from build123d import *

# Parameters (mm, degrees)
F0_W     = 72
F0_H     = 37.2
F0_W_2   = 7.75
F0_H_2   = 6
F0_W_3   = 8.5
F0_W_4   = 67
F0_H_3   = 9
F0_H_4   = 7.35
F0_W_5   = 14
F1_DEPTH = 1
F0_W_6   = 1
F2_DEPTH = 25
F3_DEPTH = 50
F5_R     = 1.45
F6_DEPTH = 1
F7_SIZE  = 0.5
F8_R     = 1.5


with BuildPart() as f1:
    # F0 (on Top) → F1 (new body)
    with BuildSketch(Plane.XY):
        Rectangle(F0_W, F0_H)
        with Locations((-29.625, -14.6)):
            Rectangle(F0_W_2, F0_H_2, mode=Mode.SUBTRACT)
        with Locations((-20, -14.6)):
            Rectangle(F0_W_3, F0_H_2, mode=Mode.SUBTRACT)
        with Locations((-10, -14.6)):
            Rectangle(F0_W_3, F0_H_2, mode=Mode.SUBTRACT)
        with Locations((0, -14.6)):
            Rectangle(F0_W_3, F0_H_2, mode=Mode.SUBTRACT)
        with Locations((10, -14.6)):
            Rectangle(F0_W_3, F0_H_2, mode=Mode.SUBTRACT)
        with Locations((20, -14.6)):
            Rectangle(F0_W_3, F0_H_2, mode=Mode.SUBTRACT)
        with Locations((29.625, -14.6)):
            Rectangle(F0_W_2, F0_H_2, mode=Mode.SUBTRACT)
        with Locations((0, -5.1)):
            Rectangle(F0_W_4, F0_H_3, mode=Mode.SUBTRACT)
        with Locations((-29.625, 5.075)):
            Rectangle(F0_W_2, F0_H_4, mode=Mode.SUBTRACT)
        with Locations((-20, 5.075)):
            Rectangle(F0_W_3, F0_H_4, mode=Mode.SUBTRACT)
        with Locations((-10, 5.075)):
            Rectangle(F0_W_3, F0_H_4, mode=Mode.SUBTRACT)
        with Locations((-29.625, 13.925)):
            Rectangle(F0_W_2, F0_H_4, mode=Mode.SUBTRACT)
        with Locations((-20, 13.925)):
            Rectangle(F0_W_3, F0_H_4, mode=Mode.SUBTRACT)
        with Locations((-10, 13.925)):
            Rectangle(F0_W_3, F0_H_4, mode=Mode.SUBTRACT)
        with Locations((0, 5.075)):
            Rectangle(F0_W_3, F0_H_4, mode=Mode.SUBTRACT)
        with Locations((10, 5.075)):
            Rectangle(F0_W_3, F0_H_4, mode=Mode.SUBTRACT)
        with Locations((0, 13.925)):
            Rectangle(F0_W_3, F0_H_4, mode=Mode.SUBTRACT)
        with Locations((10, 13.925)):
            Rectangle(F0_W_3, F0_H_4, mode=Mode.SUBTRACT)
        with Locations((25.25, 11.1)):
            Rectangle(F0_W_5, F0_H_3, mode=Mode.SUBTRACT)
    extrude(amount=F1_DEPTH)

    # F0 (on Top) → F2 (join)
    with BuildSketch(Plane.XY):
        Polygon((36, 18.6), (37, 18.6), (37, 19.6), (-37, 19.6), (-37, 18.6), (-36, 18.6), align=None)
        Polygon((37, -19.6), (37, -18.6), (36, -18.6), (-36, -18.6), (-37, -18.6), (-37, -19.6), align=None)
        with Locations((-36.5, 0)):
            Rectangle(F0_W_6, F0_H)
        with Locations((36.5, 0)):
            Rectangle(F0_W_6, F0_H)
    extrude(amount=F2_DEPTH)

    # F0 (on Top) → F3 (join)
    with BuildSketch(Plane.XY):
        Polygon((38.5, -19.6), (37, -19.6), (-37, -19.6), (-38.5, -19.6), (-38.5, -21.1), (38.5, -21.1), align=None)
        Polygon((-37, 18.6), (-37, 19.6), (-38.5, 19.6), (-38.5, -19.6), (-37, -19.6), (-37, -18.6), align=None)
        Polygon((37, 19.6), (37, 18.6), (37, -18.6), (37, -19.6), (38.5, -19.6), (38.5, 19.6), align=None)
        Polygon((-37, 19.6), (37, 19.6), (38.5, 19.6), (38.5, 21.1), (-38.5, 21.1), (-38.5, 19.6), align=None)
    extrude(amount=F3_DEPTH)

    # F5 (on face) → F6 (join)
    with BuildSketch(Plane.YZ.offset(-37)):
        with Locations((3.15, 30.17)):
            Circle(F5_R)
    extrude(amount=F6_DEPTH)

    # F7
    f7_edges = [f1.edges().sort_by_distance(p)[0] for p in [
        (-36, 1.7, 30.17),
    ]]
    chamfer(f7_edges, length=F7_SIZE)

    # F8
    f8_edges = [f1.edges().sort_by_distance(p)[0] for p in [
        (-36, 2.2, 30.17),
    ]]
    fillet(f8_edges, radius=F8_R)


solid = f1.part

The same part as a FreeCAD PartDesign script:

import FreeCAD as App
import Part
import Sketcher


def edges_at(feature, points):
    """Names of the edges that pass closest to the given points."""
    edges = feature.Shape.Edges
    near = lambda p: min(range(len(edges)), key=lambda i: edges[i].distToShape(Part.Vertex(*p))[0])
    return sorted({f"Edge{near(p) + 1}" for p in points})

doc = App.newDocument("Part")
body = doc.addObject("PartDesign::Body", "Body")

sketch1 = body.newObject("Sketcher::SketchObject", "Sketch")
sketch1.AttachmentSupport = (doc.getObject("XY_Plane"), [""])
sketch1.MapMode = "FlatFace"
sketch1.addGeometry(Part.LineSegment(App.Vector(-36, 18.6, 0), App.Vector(-36, -18.6, 0)), False)
sketch1.addGeometry(Part.LineSegment(App.Vector(-36, -18.6, 0), App.Vector(36, -18.6, 0)), False)
sketch1.addGeometry(Part.LineSegment(App.Vector(36, -18.6, 0), App.Vector(36, 18.6, 0)), False)
sketch1.addGeometry(Part.LineSegment(App.Vector(36, 18.6, 0), App.Vector(-36, 18.6, 0)), False)
sketch1.addGeometry(Part.LineSegment(App.Vector(-25.75, -17.6, 0), App.Vector(-33.5, -17.6, 0)), False)
sketch1.addGeometry(Part.LineSegment(App.Vector(-33.5, -17.6, 0), App.Vector(-33.5, -11.6, 0)), False)
sketch1.addGeometry(Part.LineSegment(App.Vector(-33.5, -11.6, 0), App.Vector(-25.75, -11.6, 0)), False)
sketch1.addGeometry(Part.LineSegment(App.Vector(-25.75, -11.6, 0), App.Vector(-25.75, -17.6, 0)), False)
sketch1.addGeometry(Part.LineSegment(App.Vector(-15.75, -17.6, 0), App.Vector(-24.25, -17.6, 0)), False)
sketch1.addGeometry(Part.LineSegment(App.Vector(-24.25, -17.6, 0), App.Vector(-24.25, -11.6, 0)), False)
sketch1.addGeometry(Part.LineSegment(App.Vector(-24.25, -11.6, 0), App.Vector(-15.75, -11.6, 0)), False)
sketch1.addGeometry(Part.LineSegment(App.Vector(-15.75, -11.6, 0), App.Vector(-15.75, -17.6, 0)), False)
sketch1.addGeometry(Part.LineSegment(App.Vector(-5.75, -17.6, 0), App.Vector(-14.25, -17.6, 0)), False)
sketch1.addGeometry(Part.LineSegment(App.Vector(-14.25, -17.6, 0), App.Vector(-14.25, -11.6, 0)), False)
sketch1.addGeometry(Part.LineSegment(App.Vector(-14.25, -11.6, 0), App.Vector(-5.75, -11.6, 0)), False)
sketch1.addGeometry(Part.LineSegment(App.Vector(-5.75, -11.6, 0), App.Vector(-5.75, -17.6, 0)), False)
sketch1.addGeometry(Part.LineSegment(App.Vector(4.25, -17.6, 0), App.Vector(-4.25, -17.6, 0)), False)
sketch1.addGeometry(Part.LineSegment(App.Vector(-4.25, -17.6, 0), App.Vector(-4.25, -11.6, 0)), False)
sketch1.addGeometry(Part.LineSegment(App.Vector(-4.25, -11.6, 0), App.Vector(4.25, -11.6, 0)), False)
sketch1.addGeometry(Part.LineSegment(App.Vector(4.25, -11.6, 0), App.Vector(4.25, -17.6, 0)), False)
sketch1.addGeometry(Part.LineSegment(App.Vector(14.25, -17.6, 0), App.Vector(5.75, -17.6, 0)), False)
sketch1.addGeometry(Part.LineSegment(App.Vector(5.75, -17.6, 0), App.Vector(5.75, -11.6, 0)), False)
sketch1.addGeometry(Part.LineSegment(App.Vector(5.75, -11.6, 0), App.Vector(14.25, -11.6, 0)), False)
sketch1.addGeometry(Part.LineSegment(App.Vector(14.25, -11.6, 0), App.Vector(14.25, -17.6, 0)), False)
sketch1.addGeometry(Part.LineSegment(App.Vector(24.25, -17.6, 0), App.Vector(15.75, -17.6, 0)), False)
sketch1.addGeometry(Part.LineSegment(App.Vector(15.75, -17.6, 0), App.Vector(15.75, -11.6, 0)), False)
sketch1.addGeometry(Part.LineSegment(App.Vector(15.75, -11.6, 0), App.Vector(24.25, -11.6, 0)), False)
sketch1.addGeometry(Part.LineSegment(App.Vector(24.25, -11.6, 0), App.Vector(24.25, -17.6, 0)), False)
sketch1.addGeometry(Part.LineSegment(App.Vector(33.5, -17.6, 0), App.Vector(25.75, -17.6, 0)), False)
sketch1.addGeometry(Part.LineSegment(App.Vector(25.75, -17.6, 0), App.Vector(25.75, -11.6, 0)), False)
sketch1.addGeometry(Part.LineSegment(App.Vector(25.75, -11.6, 0), App.Vector(33.5, -11.6, 0)), False)
sketch1.addGeometry(Part.LineSegment(App.Vector(33.5, -11.6, 0), App.Vector(33.5, -17.6, 0)), False)
sketch1.addGeometry(Part.LineSegment(App.Vector(33.5, -9.6, 0), App.Vector(-33.5, -9.6, 0)), False)
sketch1.addGeometry(Part.LineSegment(App.Vector(-33.5, -9.6, 0), App.Vector(-33.5, -0.6, 0)), False)
sketch1.addGeometry(Part.LineSegment(App.Vector(-33.5, -0.6, 0), App.Vector(33.5, -0.6, 0)), False)
sketch1.addGeometry(Part.LineSegment(App.Vector(33.5, -0.6, 0), App.Vector(33.5, -9.6, 0)), False)
sketch1.addGeometry(Part.LineSegment(App.Vector(-25.75, 1.4, 0), App.Vector(-33.5, 1.4, 0)), False)
sketch1.addGeometry(Part.LineSegment(App.Vector(-33.5, 1.4, 0), App.Vector(-33.5, 8.75, 0)), False)
sketch1.addGeometry(Part.LineSegment(App.Vector(-33.5, 8.75, 0), App.Vector(-25.75, 8.75, 0)), False)
sketch1.addGeometry(Part.LineSegment(App.Vector(-25.75, 8.75, 0), App.Vector(-25.75, 1.4, 0)), False)
sketch1.addGeometry(Part.LineSegment(App.Vector(-15.75, 1.4, 0), App.Vector(-24.25, 1.4, 0)), False)
sketch1.addGeometry(Part.LineSegment(App.Vector(-24.25, 1.4, 0), App.Vector(-24.25, 8.75, 0)), False)
sketch1.addGeometry(Part.LineSegment(App.Vector(-24.25, 8.75, 0), App.Vector(-15.75, 8.75, 0)), False)
sketch1.addGeometry(Part.LineSegment(App.Vector(-15.75, 8.75, 0), App.Vector(-15.75, 1.4, 0)), False)
sketch1.addGeometry(Part.LineSegment(App.Vector(-5.75, 1.4, 0), App.Vector(-14.25, 1.4, 0)), False)
sketch1.addGeometry(Part.LineSegment(App.Vector(-14.25, 1.4, 0), App.Vector(-14.25, 8.75, 0)), False)
sketch1.addGeometry(Part.LineSegment(App.Vector(-14.25, 8.75, 0), App.Vector(-5.75, 8.75, 0)), False)
sketch1.addGeometry(Part.LineSegment(App.Vector(-5.75, 8.75, 0), App.Vector(-5.75, 1.4, 0)), False)
sketch1.addGeometry(Part.LineSegment(App.Vector(-25.75, 10.25, 0), App.Vector(-33.5, 10.25, 0)), False)
sketch1.addGeometry(Part.LineSegment(App.Vector(-33.5, 10.25, 0), App.Vector(-33.5, 17.6, 0)), False)
sketch1.addGeometry(Part.LineSegment(App.Vector(-33.5, 17.6, 0), App.Vector(-25.75, 17.6, 0)), False)
sketch1.addGeometry(Part.LineSegment(App.Vector(-25.75, 17.6, 0), App.Vector(-25.75, 10.25, 0)), False)
sketch1.addGeometry(Part.LineSegment(App.Vector(-15.75, 10.25, 0), App.Vector(-24.25, 10.25, 0)), False)
sketch1.addGeometry(Part.LineSegment(App.Vector(-24.25, 10.25, 0), App.Vector(-24.25, 17.6, 0)), False)
sketch1.addGeometry(Part.LineSegment(App.Vector(-24.25, 17.6, 0), App.Vector(-15.75, 17.6, 0)), False)
sketch1.addGeometry(Part.LineSegment(App.Vector(-15.75, 17.6, 0), App.Vector(-15.75, 10.25, 0)), False)
sketch1.addGeometry(Part.LineSegment(App.Vector(-5.75, 10.25, 0), App.Vector(-14.25, 10.25, 0)), False)
sketch1.addGeometry(Part.LineSegment(App.Vector(-14.25, 10.25, 0), App.Vector(-14.25, 17.6, 0)), False)
sketch1.addGeometry(Part.LineSegment(App.Vector(-14.25, 17.6, 0), App.Vector(-5.75, 17.6, 0)), False)
sketch1.addGeometry(Part.LineSegment(App.Vector(-5.75, 17.6, 0), App.Vector(-5.75, 10.25, 0)), False)
sketch1.addGeometry(Part.LineSegment(App.Vector(4.25, 1.4, 0), App.Vector(-4.25, 1.4, 0)), False)
sketch1.addGeometry(Part.LineSegment(App.Vector(-4.25, 1.4, 0), App.Vector(-4.25, 8.75, 0)), False)
sketch1.addGeometry(Part.LineSegment(App.Vector(-4.25, 8.75, 0), App.Vector(4.25, 8.75, 0)), False)
sketch1.addGeometry(Part.LineSegment(App.Vector(4.25, 8.75, 0), App.Vector(4.25, 1.4, 0)), False)
sketch1.addGeometry(Part.LineSegment(App.Vector(14.25, 1.4, 0), App.Vector(5.75, 1.4, 0)), False)
sketch1.addGeometry(Part.LineSegment(App.Vector(5.75, 1.4, 0), App.Vector(5.75, 8.75, 0)), False)
sketch1.addGeometry(Part.LineSegment(App.Vector(5.75, 8.75, 0), App.Vector(14.25, 8.75, 0)), False)
sketch1.addGeometry(Part.LineSegment(App.Vector(14.25, 8.75, 0), App.Vector(14.25, 1.4, 0)), False)
sketch1.addGeometry(Part.LineSegment(App.Vector(4.25, 10.25, 0), App.Vector(-4.25, 10.25, 0)), False)
sketch1.addGeometry(Part.LineSegment(App.Vector(-4.25, 10.25, 0), App.Vector(-4.25, 17.6, 0)), False)
sketch1.addGeometry(Part.LineSegment(App.Vector(-4.25, 17.6, 0), App.Vector(4.25, 17.6, 0)), False)
sketch1.addGeometry(Part.LineSegment(App.Vector(4.25, 17.6, 0), App.Vector(4.25, 10.25, 0)), False)
sketch1.addGeometry(Part.LineSegment(App.Vector(14.25, 10.25, 0), App.Vector(5.75, 10.25, 0)), False)
sketch1.addGeometry(Part.LineSegment(App.Vector(5.75, 10.25, 0), App.Vector(5.75, 17.6, 0)), False)
sketch1.addGeometry(Part.LineSegment(App.Vector(5.75, 17.6, 0), App.Vector(14.25, 17.6, 0)), False)
sketch1.addGeometry(Part.LineSegment(App.Vector(14.25, 17.6, 0), App.Vector(14.25, 10.25, 0)), False)
sketch1.addGeometry(Part.LineSegment(App.Vector(32.25, 6.6, 0), App.Vector(18.25, 6.6, 0)), False)
sketch1.addGeometry(Part.LineSegment(App.Vector(18.25, 6.6, 0), App.Vector(18.25, 15.6, 0)), False)
sketch1.addGeometry(Part.LineSegment(App.Vector(18.25, 15.6, 0), App.Vector(32.25, 15.6, 0)), False)
sketch1.addGeometry(Part.LineSegment(App.Vector(32.25, 15.6, 0), App.Vector(32.25, 6.6, 0)), False)
sketch1.addConstraint(Sketcher.Constraint("Coincident", 0, 2, 1, 1))
sketch1.addConstraint(Sketcher.Constraint("Coincident", 1, 2, 2, 1))
sketch1.addConstraint(Sketcher.Constraint("Coincident", 2, 2, 3, 1))
sketch1.addConstraint(Sketcher.Constraint("Coincident", 3, 2, 0, 1))
sketch1.addConstraint(Sketcher.Constraint("Coincident", 4, 2, 5, 1))
sketch1.addConstraint(Sketcher.Constraint("Coincident", 5, 2, 6, 1))
sketch1.addConstraint(Sketcher.Constraint("Coincident", 6, 2, 7, 1))
sketch1.addConstraint(Sketcher.Constraint("Coincident", 7, 2, 4, 1))
sketch1.addConstraint(Sketcher.Constraint("Coincident", 8, 2, 9, 1))
sketch1.addConstraint(Sketcher.Constraint("Coincident", 9, 2, 10, 1))
sketch1.addConstraint(Sketcher.Constraint("Coincident", 10, 2, 11, 1))
sketch1.addConstraint(Sketcher.Constraint("Coincident", 11, 2, 8, 1))
sketch1.addConstraint(Sketcher.Constraint("Coincident", 12, 2, 13, 1))
sketch1.addConstraint(Sketcher.Constraint("Coincident", 13, 2, 14, 1))
sketch1.addConstraint(Sketcher.Constraint("Coincident", 14, 2, 15, 1))
sketch1.addConstraint(Sketcher.Constraint("Coincident", 15, 2, 12, 1))
sketch1.addConstraint(Sketcher.Constraint("Coincident", 16, 2, 17, 1))
sketch1.addConstraint(Sketcher.Constraint("Coincident", 17, 2, 18, 1))
sketch1.addConstraint(Sketcher.Constraint("Coincident", 18, 2, 19, 1))
sketch1.addConstraint(Sketcher.Constraint("Coincident", 19, 2, 16, 1))
sketch1.addConstraint(Sketcher.Constraint("Coincident", 20, 2, 21, 1))
sketch1.addConstraint(Sketcher.Constraint("Coincident", 21, 2, 22, 1))
sketch1.addConstraint(Sketcher.Constraint("Coincident", 22, 2, 23, 1))
sketch1.addConstraint(Sketcher.Constraint("Coincident", 23, 2, 20, 1))
sketch1.addConstraint(Sketcher.Constraint("Coincident", 24, 2, 25, 1))
sketch1.addConstraint(Sketcher.Constraint("Coincident", 25, 2, 26, 1))
sketch1.addConstraint(Sketcher.Constraint("Coincident", 26, 2, 27, 1))
sketch1.addConstraint(Sketcher.Constraint("Coincident", 27, 2, 24, 1))
sketch1.addConstraint(Sketcher.Constraint("Coincident", 28, 2, 29, 1))
sketch1.addConstraint(Sketcher.Constraint("Coincident", 29, 2, 30, 1))
sketch1.addConstraint(Sketcher.Constraint("Coincident", 30, 2, 31, 1))
sketch1.addConstraint(Sketcher.Constraint("Coincident", 31, 2, 28, 1))
sketch1.addConstraint(Sketcher.Constraint("Coincident", 32, 2, 33, 1))
sketch1.addConstraint(Sketcher.Constraint("Coincident", 33, 2, 34, 1))
sketch1.addConstraint(Sketcher.Constraint("Coincident", 34, 2, 35, 1))
sketch1.addConstraint(Sketcher.Constraint("Coincident", 35, 2, 32, 1))
sketch1.addConstraint(Sketcher.Constraint("Coincident", 36, 2, 37, 1))
sketch1.addConstraint(Sketcher.Constraint("Coincident", 37, 2, 38, 1))
sketch1.addConstraint(Sketcher.Constraint("Coincident", 38, 2, 39, 1))
sketch1.addConstraint(Sketcher.Constraint("Coincident", 39, 2, 36, 1))
sketch1.addConstraint(Sketcher.Constraint("Coincident", 40, 2, 41, 1))
sketch1.addConstraint(Sketcher.Constraint("Coincident", 41, 2, 42, 1))
sketch1.addConstraint(Sketcher.Constraint("Coincident", 42, 2, 43, 1))
sketch1.addConstraint(Sketcher.Constraint("Coincident", 43, 2, 40, 1))
sketch1.addConstraint(Sketcher.Constraint("Coincident", 44, 2, 45, 1))
sketch1.addConstraint(Sketcher.Constraint("Coincident", 45, 2, 46, 1))
sketch1.addConstraint(Sketcher.Constraint("Coincident", 46, 2, 47, 1))
sketch1.addConstraint(Sketcher.Constraint("Coincident", 47, 2, 44, 1))
sketch1.addConstraint(Sketcher.Constraint("Coincident", 48, 2, 49, 1))
sketch1.addConstraint(Sketcher.Constraint("Coincident", 49, 2, 50, 1))
sketch1.addConstraint(Sketcher.Constraint("Coincident", 50, 2, 51, 1))
sketch1.addConstraint(Sketcher.Constraint("Coincident", 51, 2, 48, 1))
sketch1.addConstraint(Sketcher.Constraint("Coincident", 52, 2, 53, 1))
sketch1.addConstraint(Sketcher.Constraint("Coincident", 53, 2, 54, 1))
sketch1.addConstraint(Sketcher.Constraint("Coincident", 54, 2, 55, 1))
sketch1.addConstraint(Sketcher.Constraint("Coincident", 55, 2, 52, 1))
sketch1.addConstraint(Sketcher.Constraint("Coincident", 56, 2, 57, 1))
sketch1.addConstraint(Sketcher.Constraint("Coincident", 57, 2, 58, 1))
sketch1.addConstraint(Sketcher.Constraint("Coincident", 58, 2, 59, 1))
sketch1.addConstraint(Sketcher.Constraint("Coincident", 59, 2, 56, 1))
sketch1.addConstraint(Sketcher.Constraint("Coincident", 60, 2, 61, 1))
sketch1.addConstraint(Sketcher.Constraint("Coincident", 61, 2, 62, 1))
sketch1.addConstraint(Sketcher.Constraint("Coincident", 62, 2, 63, 1))
sketch1.addConstraint(Sketcher.Constraint("Coincident", 63, 2, 60, 1))
sketch1.addConstraint(Sketcher.Constraint("Coincident", 64, 2, 65, 1))
sketch1.addConstraint(Sketcher.Constraint("Coincident", 65, 2, 66, 1))
sketch1.addConstraint(Sketcher.Constraint("Coincident", 66, 2, 67, 1))
sketch1.addConstraint(Sketcher.Constraint("Coincident", 67, 2, 64, 1))
sketch1.addConstraint(Sketcher.Constraint("Coincident", 68, 2, 69, 1))
sketch1.addConstraint(Sketcher.Constraint("Coincident", 69, 2, 70, 1))
sketch1.addConstraint(Sketcher.Constraint("Coincident", 70, 2, 71, 1))
sketch1.addConstraint(Sketcher.Constraint("Coincident", 71, 2, 68, 1))
sketch1.addConstraint(Sketcher.Constraint("Coincident", 72, 2, 73, 1))
sketch1.addConstraint(Sketcher.Constraint("Coincident", 73, 2, 74, 1))
sketch1.addConstraint(Sketcher.Constraint("Coincident", 74, 2, 75, 1))
sketch1.addConstraint(Sketcher.Constraint("Coincident", 75, 2, 72, 1))
sketch1.addConstraint(Sketcher.Constraint("Coincident", 76, 2, 77, 1))
sketch1.addConstraint(Sketcher.Constraint("Coincident", 77, 2, 78, 1))
sketch1.addConstraint(Sketcher.Constraint("Coincident", 78, 2, 79, 1))
sketch1.addConstraint(Sketcher.Constraint("Coincident", 79, 2, 76, 1))
sketch1.addConstraint(Sketcher.Constraint("Vertical", 0))
sketch1.addConstraint(Sketcher.Constraint("Horizontal", 1))
sketch1.addConstraint(Sketcher.Constraint("Vertical", 2))
sketch1.addConstraint(Sketcher.Constraint("Horizontal", 3))
sketch1.addConstraint(Sketcher.Constraint("Horizontal", 4))
sketch1.addConstraint(Sketcher.Constraint("Vertical", 5))
sketch1.addConstraint(Sketcher.Constraint("Horizontal", 6))
sketch1.addConstraint(Sketcher.Constraint("Vertical", 7))
sketch1.addConstraint(Sketcher.Constraint("Horizontal", 8))
sketch1.addConstraint(Sketcher.Constraint("Vertical", 9))
sketch1.addConstraint(Sketcher.Constraint("Horizontal", 10))
sketch1.addConstraint(Sketcher.Constraint("Vertical", 11))
sketch1.addConstraint(Sketcher.Constraint("Horizontal", 12))
sketch1.addConstraint(Sketcher.Constraint("Vertical", 13))
sketch1.addConstraint(Sketcher.Constraint("Horizontal", 14))
sketch1.addConstraint(Sketcher.Constraint("Vertical", 15))
sketch1.addConstraint(Sketcher.Constraint("Horizontal", 16))
sketch1.addConstraint(Sketcher.Constraint("Vertical", 17))
sketch1.addConstraint(Sketcher.Constraint("Horizontal", 18))
sketch1.addConstraint(Sketcher.Constraint("Vertical", 19))
sketch1.addConstraint(Sketcher.Constraint("Horizontal", 20))
sketch1.addConstraint(Sketcher.Constraint("Vertical", 21))
sketch1.addConstraint(Sketcher.Constraint("Horizontal", 22))
sketch1.addConstraint(Sketcher.Constraint("Vertical", 23))
sketch1.addConstraint(Sketcher.Constraint("Horizontal", 24))
sketch1.addConstraint(Sketcher.Constraint("Vertical", 25))
sketch1.addConstraint(Sketcher.Constraint("Horizontal", 26))
sketch1.addConstraint(Sketcher.Constraint("Vertical", 27))
sketch1.addConstraint(Sketcher.Constraint("Horizontal", 28))
sketch1.addConstraint(Sketcher.Constraint("Vertical", 29))
sketch1.addConstraint(Sketcher.Constraint("Horizontal", 30))
sketch1.addConstraint(Sketcher.Constraint("Vertical", 31))
sketch1.addConstraint(Sketcher.Constraint("Horizontal", 32))
sketch1.addConstraint(Sketcher.Constraint("Vertical", 33))
sketch1.addConstraint(Sketcher.Constraint("Horizontal", 34))
sketch1.addConstraint(Sketcher.Constraint("Vertical", 35))
sketch1.addConstraint(Sketcher.Constraint("Horizontal", 36))
sketch1.addConstraint(Sketcher.Constraint("Vertical", 37))
sketch1.addConstraint(Sketcher.Constraint("Horizontal", 38))
sketch1.addConstraint(Sketcher.Constraint("Vertical", 39))
sketch1.addConstraint(Sketcher.Constraint("Horizontal", 40))
sketch1.addConstraint(Sketcher.Constraint("Vertical", 41))
sketch1.addConstraint(Sketcher.Constraint("Horizontal", 42))
sketch1.addConstraint(Sketcher.Constraint("Vertical", 43))
sketch1.addConstraint(Sketcher.Constraint("Horizontal", 44))
sketch1.addConstraint(Sketcher.Constraint("Vertical", 45))
sketch1.addConstraint(Sketcher.Constraint("Horizontal", 46))
sketch1.addConstraint(Sketcher.Constraint("Vertical", 47))
sketch1.addConstraint(Sketcher.Constraint("Horizontal", 48))
sketch1.addConstraint(Sketcher.Constraint("Vertical", 49))
sketch1.addConstraint(Sketcher.Constraint("Horizontal", 50))
sketch1.addConstraint(Sketcher.Constraint("Vertical", 51))
sketch1.addConstraint(Sketcher.Constraint("Horizontal", 52))
sketch1.addConstraint(Sketcher.Constraint("Vertical", 53))
sketch1.addConstraint(Sketcher.Constraint("Horizontal", 54))
sketch1.addConstraint(Sketcher.Constraint("Vertical", 55))
sketch1.addConstraint(Sketcher.Constraint("Horizontal", 56))
sketch1.addConstraint(Sketcher.Constraint("Vertical", 57))
sketch1.addConstraint(Sketcher.Constraint("Horizontal", 58))
sketch1.addConstraint(Sketcher.Constraint("Vertical", 59))
sketch1.addConstraint(Sketcher.Constraint("Horizontal", 60))
sketch1.addConstraint(Sketcher.Constraint("Vertical", 61))
sketch1.addConstraint(Sketcher.Constraint("Horizontal", 62))
sketch1.addConstraint(Sketcher.Constraint("Vertical", 63))
sketch1.addConstraint(Sketcher.Constraint("Horizontal", 64))
sketch1.addConstraint(Sketcher.Constraint("Vertical", 65))
sketch1.addConstraint(Sketcher.Constraint("Horizontal", 66))
sketch1.addConstraint(Sketcher.Constraint("Vertical", 67))
sketch1.addConstraint(Sketcher.Constraint("Horizontal", 68))
sketch1.addConstraint(Sketcher.Constraint("Vertical", 69))
sketch1.addConstraint(Sketcher.Constraint("Horizontal", 70))
sketch1.addConstraint(Sketcher.Constraint("Vertical", 71))
sketch1.addConstraint(Sketcher.Constraint("Horizontal", 72))
sketch1.addConstraint(Sketcher.Constraint("Vertical", 73))
sketch1.addConstraint(Sketcher.Constraint("Horizontal", 74))
sketch1.addConstraint(Sketcher.Constraint("Vertical", 75))
sketch1.addConstraint(Sketcher.Constraint("Horizontal", 76))
sketch1.addConstraint(Sketcher.Constraint("Vertical", 77))
sketch1.addConstraint(Sketcher.Constraint("Horizontal", 78))
sketch1.addConstraint(Sketcher.Constraint("Vertical", 79))
sketch1.addConstraint(Sketcher.Constraint("Symmetric", 0, 2, 2, 2, -1, 1))
sketch1.addConstraint(Sketcher.Constraint("Symmetric", 31, 2, 49, 2, -1, 1))
sketch1.addConstraint(Sketcher.Constraint("Symmetric", 27, 2, 53, 2, -1, 1))
sketch1.addConstraint(Sketcher.Constraint("Symmetric", 23, 2, 57, 2, -1, 1))
sketch1.addConstraint(Sketcher.Constraint("Symmetric", 19, 2, 69, 2, -1, 1))
sketch1.addConstraint(Sketcher.Constraint("Symmetric", 15, 2, 73, 2, -1, 1))
sketch1.addConstraint(Sketcher.Constraint("Symmetric", 15, 2, 20, 2, -2))
sketch1.addConstraint(Sketcher.Constraint("Symmetric", 13, 2, 22, 2, -2))
sketch1.addConstraint(Sketcher.Constraint("Symmetric", 11, 2, 24, 2, -2))
sketch1.addConstraint(Sketcher.Constraint("Symmetric", 9, 2, 26, 2, -2))
sketch1.addConstraint(Sketcher.Constraint("Symmetric", 7, 2, 28, 2, -2))
sketch1.addConstraint(Sketcher.Constraint("Symmetric", 5, 2, 30, 2, -2))
sketch1.addConstraint(Sketcher.Constraint("Symmetric", 47, 2, 64, 2, -2))
sketch1.addConstraint(Sketcher.Constraint("Symmetric", 45, 2, 66, 2, -2))
sketch1.addConstraint(Sketcher.Constraint("Symmetric", 59, 2, 72, 2, -2))
sketch1.addConstraint(Sketcher.Constraint("Horizontal", 7, 2, 8, 2))
sketch1.addConstraint(Sketcher.Constraint("Horizontal", 6, 2, 9, 2))
sketch1.addConstraint(Sketcher.Constraint("Horizontal", 11, 2, 12, 2))
sketch1.addConstraint(Sketcher.Constraint("Horizontal", 10, 2, 13, 2))
sketch1.addConstraint(Sketcher.Constraint("Horizontal", 15, 2, 16, 2))
sketch1.addConstraint(Sketcher.Constraint("Horizontal", 14, 2, 17, 2))
sketch1.addConstraint(Sketcher.Constraint("Horizontal", 39, 2, 40, 2))
sketch1.addConstraint(Sketcher.Constraint("Horizontal", 38, 2, 41, 2))
sketch1.addConstraint(Sketcher.Constraint("Horizontal", 43, 2, 44, 2))
sketch1.addConstraint(Sketcher.Constraint("Horizontal", 42, 2, 45, 2))
sketch1.addConstraint(Sketcher.Constraint("Horizontal", 51, 2, 52, 2))
sketch1.addConstraint(Sketcher.Constraint("Horizontal", 55, 2, 56, 2))
sketch1.addConstraint(Sketcher.Constraint("Horizontal", 47, 2, 60, 2))
sketch1.addConstraint(Sketcher.Constraint("Horizontal", 46, 2, 61, 2))
sketch1.addConstraint(Sketcher.Constraint("Horizontal", 59, 2, 68, 2))
sketch1.addConstraint(Sketcher.Constraint("Vertical", 5, 2, 32, 2))
sketch1.addConstraint(Sketcher.Constraint("Vertical", 31, 2, 34, 2))
sketch1.addConstraint(Sketcher.Constraint("Vertical", 33, 2, 36, 2))
sketch1.addConstraint(Sketcher.Constraint("Vertical", 7, 2, 38, 2))
sketch1.addConstraint(Sketcher.Constraint("Vertical", 9, 2, 40, 2))
sketch1.addConstraint(Sketcher.Constraint("Vertical", 11, 2, 42, 2))
sketch1.addConstraint(Sketcher.Constraint("Vertical", 13, 2, 44, 2))
sketch1.addConstraint(Sketcher.Constraint("Vertical", 15, 2, 46, 2))
sketch1.addConstraint(Sketcher.Constraint("Vertical", 39, 2, 50, 2))
sketch1.addConstraint(Sketcher.Constraint("Vertical", 43, 2, 54, 2))
sketch1.addConstraint(Sketcher.Constraint("Vertical", 17, 2, 60, 2))
sketch1.addConstraint(Sketcher.Constraint("Vertical", 19, 2, 62, 2))
sketch1.addConstraint(Sketcher.Constraint("Vertical", 61, 2, 68, 2))
sketch1.addConstraint(Sketcher.Constraint("Vertical", 63, 2, 70, 2))
sketch1.addConstraint(Sketcher.Constraint("Vertical", 67, 2, 74, 2))
sketch1.addConstraint(Sketcher.Constraint("Equal", 10, 12))
sketch1.addConstraint(Sketcher.Constraint("Equal", 14, 16))
sketch1.addConstraint(Sketcher.Constraint("Equal", 47, 49))
sketch1.addConstraint(Sketcher.Constraint("Equal", 35, 77))
sketch1.addConstraint(Sketcher.Constraint("DistanceX", 1, 1, 1, 2, 72.0))
sketch1.addConstraint(Sketcher.Constraint("DistanceX", 32, 2, 32, 1, 67.0))
sketch1.addConstraint(Sketcher.Constraint("DistanceX", 76, 2, 76, 1, 14.0))
sketch1.addConstraint(Sketcher.Constraint("DistanceY", 5, 1, 5, 2, 6.0))
sketch1.addConstraint(Sketcher.Constraint("DistanceY", 33, 1, 33, 2, 9.0))
sketch1.addConstraint(Sketcher.Constraint("DistanceX", 8, 2, 8, 1, 8.5))
sketch1.addConstraint(Sketcher.Constraint("DistanceY", 0, 2, 0, 1, 37.2))
sketch1.addConstraint(Sketcher.Constraint("DistanceX", 4, 2, 4, 1, 7.75))
sketch1.addConstraint(Sketcher.Constraint("DistanceY", 37, 1, 37, 2, 7.35))
sketch1.addConstraint(Sketcher.Constraint("DistanceY", 4, 2, -1, 1, 17.6))
sketch1.addConstraint(Sketcher.Constraint("DistanceY", 32, 2, -1, 1, 9.6))
sketch1.addConstraint(Sketcher.Constraint("DistanceY", -1, 1, 36, 2, 1.4))
sketch1.addConstraint(Sketcher.Constraint("DistanceY", -1, 1, 76, 2, 6.6))
sketch1.addConstraint(Sketcher.Constraint("DistanceX", 8, 2, -1, 1, 24.25))
sketch1.addConstraint(Sketcher.Constraint("DistanceX", 12, 2, -1, 1, 14.25))
sketch1.addConstraint(Sketcher.Constraint("DistanceX", -1, 1, 76, 2, 18.25))
pad1 = body.newObject("PartDesign::Pad", "Pad")
pad1.Profile = sketch1
pad1.Length = 1

sketch2 = body.newObject("Sketcher::SketchObject", "Sketch001")
sketch2.AttachmentSupport = (doc.getObject("XY_Plane"), [""])
sketch2.MapMode = "FlatFace"
sketch2.addGeometry(Part.LineSegment(App.Vector(37, 19.6, 0), App.Vector(-37, 19.6, 0)), False)
sketch2.addGeometry(Part.LineSegment(App.Vector(-37, 19.6, 0), App.Vector(-37, -19.6, 0)), False)
sketch2.addGeometry(Part.LineSegment(App.Vector(-37, -19.6, 0), App.Vector(37, -19.6, 0)), False)
sketch2.addGeometry(Part.LineSegment(App.Vector(37, -19.6, 0), App.Vector(37, 19.6, 0)), False)
sketch2.addGeometry(Part.LineSegment(App.Vector(36, -18.6, 0), App.Vector(-36, -18.6, 0)), False)
sketch2.addGeometry(Part.LineSegment(App.Vector(-36, -18.6, 0), App.Vector(-36, 18.6, 0)), False)
sketch2.addGeometry(Part.LineSegment(App.Vector(-36, 18.6, 0), App.Vector(36, 18.6, 0)), False)
sketch2.addGeometry(Part.LineSegment(App.Vector(36, 18.6, 0), App.Vector(36, -18.6, 0)), False)
sketch2.addConstraint(Sketcher.Constraint("Coincident", 0, 2, 1, 1))
sketch2.addConstraint(Sketcher.Constraint("Coincident", 1, 2, 2, 1))
sketch2.addConstraint(Sketcher.Constraint("Coincident", 2, 2, 3, 1))
sketch2.addConstraint(Sketcher.Constraint("Coincident", 3, 2, 0, 1))
sketch2.addConstraint(Sketcher.Constraint("Coincident", 4, 2, 5, 1))
sketch2.addConstraint(Sketcher.Constraint("Coincident", 5, 2, 6, 1))
sketch2.addConstraint(Sketcher.Constraint("Coincident", 6, 2, 7, 1))
sketch2.addConstraint(Sketcher.Constraint("Coincident", 7, 2, 4, 1))
sketch2.addConstraint(Sketcher.Constraint("Horizontal", 0))
sketch2.addConstraint(Sketcher.Constraint("Vertical", 1))
sketch2.addConstraint(Sketcher.Constraint("Horizontal", 2))
sketch2.addConstraint(Sketcher.Constraint("Vertical", 3))
sketch2.addConstraint(Sketcher.Constraint("Horizontal", 4))
sketch2.addConstraint(Sketcher.Constraint("Vertical", 5))
sketch2.addConstraint(Sketcher.Constraint("Horizontal", 6))
sketch2.addConstraint(Sketcher.Constraint("Vertical", 7))
sketch2.addConstraint(Sketcher.Constraint("Symmetric", 0, 2, 2, 2, -1, 1))
sketch2.addConstraint(Sketcher.Constraint("Symmetric", 4, 2, 6, 2, -1, 1))
sketch2.addConstraint(Sketcher.Constraint("DistanceX", 0, 2, 0, 1, 74.0))
sketch2.addConstraint(Sketcher.Constraint("DistanceX", 4, 2, 4, 1, 72.0))
sketch2.addConstraint(Sketcher.Constraint("DistanceY", 1, 2, 1, 1, 39.2))
sketch2.addConstraint(Sketcher.Constraint("DistanceY", 5, 1, 5, 2, 37.2))
pad2 = body.newObject("PartDesign::Pad", "Pad001")
pad2.Profile = sketch2
pad2.Length = 25

sketch3 = body.newObject("Sketcher::SketchObject", "Sketch002")
sketch3.AttachmentSupport = (doc.getObject("XY_Plane"), [""])
sketch3.MapMode = "FlatFace"
sketch3.addGeometry(Part.LineSegment(App.Vector(-38.5, -21.1, 0), App.Vector(38.5, -21.1, 0)), False)
sketch3.addGeometry(Part.LineSegment(App.Vector(38.5, -21.1, 0), App.Vector(38.5, 21.1, 0)), False)
sketch3.addGeometry(Part.LineSegment(App.Vector(38.5, 21.1, 0), App.Vector(-38.5, 21.1, 0)), False)
sketch3.addGeometry(Part.LineSegment(App.Vector(-38.5, 21.1, 0), App.Vector(-38.5, -21.1, 0)), False)
sketch3.addGeometry(Part.LineSegment(App.Vector(37, -19.6, 0), App.Vector(-37, -19.6, 0)), False)
sketch3.addGeometry(Part.LineSegment(App.Vector(-37, -19.6, 0), App.Vector(-37, 19.6, 0)), False)
sketch3.addGeometry(Part.LineSegment(App.Vector(-37, 19.6, 0), App.Vector(37, 19.6, 0)), False)
sketch3.addGeometry(Part.LineSegment(App.Vector(37, 19.6, 0), App.Vector(37, -19.6, 0)), False)
sketch3.addConstraint(Sketcher.Constraint("Coincident", 0, 2, 1, 1))
sketch3.addConstraint(Sketcher.Constraint("Coincident", 1, 2, 2, 1))
sketch3.addConstraint(Sketcher.Constraint("Coincident", 2, 2, 3, 1))
sketch3.addConstraint(Sketcher.Constraint("Coincident", 3, 2, 0, 1))
sketch3.addConstraint(Sketcher.Constraint("Coincident", 4, 2, 5, 1))
sketch3.addConstraint(Sketcher.Constraint("Coincident", 5, 2, 6, 1))
sketch3.addConstraint(Sketcher.Constraint("Coincident", 6, 2, 7, 1))
sketch3.addConstraint(Sketcher.Constraint("Coincident", 7, 2, 4, 1))
sketch3.addConstraint(Sketcher.Constraint("Horizontal", 0))
sketch3.addConstraint(Sketcher.Constraint("Vertical", 1))
sketch3.addConstraint(Sketcher.Constraint("Horizontal", 2))
sketch3.addConstraint(Sketcher.Constraint("Vertical", 3))
sketch3.addConstraint(Sketcher.Constraint("Horizontal", 4))
sketch3.addConstraint(Sketcher.Constraint("Vertical", 5))
sketch3.addConstraint(Sketcher.Constraint("Horizontal", 6))
sketch3.addConstraint(Sketcher.Constraint("Vertical", 7))
sketch3.addConstraint(Sketcher.Constraint("Symmetric", 0, 2, 2, 2, -1, 1))
sketch3.addConstraint(Sketcher.Constraint("Symmetric", 4, 2, 6, 2, -1, 1))
sketch3.addConstraint(Sketcher.Constraint("DistanceX", 0, 1, 0, 2, 77.0))
sketch3.addConstraint(Sketcher.Constraint("DistanceX", 4, 2, 4, 1, 74.0))
sketch3.addConstraint(Sketcher.Constraint("DistanceY", 1, 1, 1, 2, 42.2))
sketch3.addConstraint(Sketcher.Constraint("DistanceY", 5, 1, 5, 2, 39.2))
pad3 = body.newObject("PartDesign::Pad", "Pad002")
pad3.Profile = sketch3
pad3.Length = 50

sketch4 = body.newObject("Sketcher::SketchObject", "Sketch003")
sketch4.AttachmentSupport = (doc.getObject("YZ_Plane"), [""])
sketch4.MapMode = "FlatFace"
sketch4.AttachmentOffset = App.Placement(App.Vector(0, 0, -37), App.Rotation())
sketch4.addGeometry(Part.Circle(App.Vector(3.15, 30.17, 0), App.Vector(0, 0, 1), 1.45), False)
sketch4.addConstraint(Sketcher.Constraint("Diameter", 0, 2.9))
sketch4.addConstraint(Sketcher.Constraint("DistanceX", -1, 1, 0, 3, 3.15))
sketch4.addConstraint(Sketcher.Constraint("DistanceY", -1, 1, 0, 3, 30.17))
pad4 = body.newObject("PartDesign::Pad", "Pad003")
pad4.Profile = sketch4
pad4.Length = 1
doc.recompute()

chamfer = body.newObject("PartDesign::Chamfer", "Chamfer")
chamfer.Base = (pad4, edges_at(pad4, [(-36, 1.7, 30.17)]))
chamfer.Size = 0.5
doc.recompute()

fillet = body.newObject("PartDesign::Fillet", "Fillet")
fillet.Base = (chamfer, edges_at(chamfer, [(-36, 2.2, 30.17)]))
fillet.Radius = 1.5

doc.recompute()
